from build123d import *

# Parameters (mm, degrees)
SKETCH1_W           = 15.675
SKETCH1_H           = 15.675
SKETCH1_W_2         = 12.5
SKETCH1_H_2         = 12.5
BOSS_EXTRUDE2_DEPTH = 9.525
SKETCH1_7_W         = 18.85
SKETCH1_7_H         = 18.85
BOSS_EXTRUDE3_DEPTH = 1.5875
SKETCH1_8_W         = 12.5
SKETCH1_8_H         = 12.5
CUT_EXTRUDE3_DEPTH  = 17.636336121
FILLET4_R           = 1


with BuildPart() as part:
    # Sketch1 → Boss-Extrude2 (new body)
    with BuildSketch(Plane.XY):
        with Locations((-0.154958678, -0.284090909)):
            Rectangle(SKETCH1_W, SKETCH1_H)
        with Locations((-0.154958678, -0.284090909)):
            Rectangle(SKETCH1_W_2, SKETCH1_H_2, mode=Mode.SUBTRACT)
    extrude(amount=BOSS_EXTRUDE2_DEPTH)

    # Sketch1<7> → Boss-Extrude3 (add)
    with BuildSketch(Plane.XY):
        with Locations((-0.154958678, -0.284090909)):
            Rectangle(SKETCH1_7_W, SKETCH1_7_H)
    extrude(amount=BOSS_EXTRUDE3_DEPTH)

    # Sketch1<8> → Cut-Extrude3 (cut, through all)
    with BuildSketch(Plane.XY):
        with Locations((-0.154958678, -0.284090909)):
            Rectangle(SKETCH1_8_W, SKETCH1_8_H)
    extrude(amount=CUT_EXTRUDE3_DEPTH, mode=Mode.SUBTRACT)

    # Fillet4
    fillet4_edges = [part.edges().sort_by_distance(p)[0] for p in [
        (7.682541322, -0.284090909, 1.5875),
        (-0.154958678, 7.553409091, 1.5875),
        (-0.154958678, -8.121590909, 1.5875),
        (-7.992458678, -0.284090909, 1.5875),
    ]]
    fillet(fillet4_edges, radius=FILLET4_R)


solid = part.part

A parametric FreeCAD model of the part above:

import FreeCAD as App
import Part
import Sketcher

V = App.Vector


def edges_at(feature, points):
    """Names of the edges that pass closest to the given points."""
    edges = feature.Shape.Edges
    near = lambda p: min(range(len(edges)), key=lambda i: edges[i].distToShape(Part.Vertex(*p))[0])
    return sorted({f"Edge{near(p) + 1}" for p in points})

doc = App.newDocument("Part")
body = doc.addObject("PartDesign::Body", "Body")

# Sketch on XY plane
sketch1 = body.newObject("Sketcher::SketchObject", "Sketch")
sketch1.AttachmentSupport = (doc.getObject("XY_Plane"), [""])
sketch1.MapMode = "FlatFace"
sketch1.addGeometry(Part.LineSegment(V(-7.992459, 7.553409, 0), V(-7.992459, -8.121591, 0)), False)
sketch1.addGeometry(Part.LineSegment(V(-7.992459, -8.121591, 0), V(7.682541, -8.121591, 0)), False)
sketch1.addGeometry(Part.LineSegment(V(7.682541, -8.121591, 0), V(7.682541, 7.553409, 0)), False)
sketch1.addGeometry(Part.LineSegment(V(7.682541, 7.553409, 0), V(-7.992459, 7.553409, 0)), False)
sketch1.addGeometry(Part.LineSegment(V(6.095041, -6.534091, 0), V(-6.404959, -6.534091, 0)), False)
sketch1.addGeometry(Part.LineSegment(V(-6.404959, -6.534091, 0), V(-6.404959, 5.965909, 0)), False)
sketch1.addGeometry(Part.LineSegment(V(-6.404959, 5.965909, 0), V(6.095041, 5.965909, 0)), False)
sketch1.addGeometry(Part.LineSegment(V(6.095041, 5.965909, 0), V(6.095041, -6.534091, 0)), False)
sketch1.addConstraint(Sketcher.Constraint("Coincident", 0, 2, 1, 1))
sketch1.addConstraint(Sketcher.Constraint("Coincident", 1, 2, 2, 1))
sketch1.addConstraint(Sketcher.Constraint("Coincident", 2, 2, 3, 1))
sketch1.addConstraint(Sketcher.Constraint("Coincident", 3, 2, 0, 1))
sketch1.addConstraint(Sketcher.Constraint("Coincident", 4, 2, 5, 1))
sketch1.addConstraint(Sketcher.Constraint("Coincident", 5, 2, 6, 1))
sketch1.addConstraint(Sketcher.Constraint("Coincident", 6, 2, 7, 1))
sketch1.addConstraint(Sketcher.Constraint("Coincident", 7, 2, 4, 1))
sketch1.addConstraint(Sketcher.Constraint("Vertical", 0))
sketch1.addConstraint(Sketcher.Constraint("Horizontal", 1))
sketch1.addConstraint(Sketcher.Constraint("Vertical", 2))
sketch1.addConstraint(Sketcher.Constraint("Horizontal", 3))
sketch1.addConstraint(Sketcher.Constraint("Horizontal", 4))
sketch1.addConstraint(Sketcher.Constraint("Vertical", 5))
sketch1.addConstraint(Sketcher.Constraint("Horizontal", 6))
sketch1.addConstraint(Sketcher.Constraint("Vertical", 7))
sketch1.addConstraint(Sketcher.Constraint("Equal", 3, 0))
sketch1.addConstraint(Sketcher.Constraint("Equal", 6, 5))
sketch1.addConstraint(Sketcher.Constraint("DistanceX", 4, 2, 4, 1, 12.5))
sketch1.addConstraint(Sketcher.Constraint("DistanceX", 1, 1, 1, 2, 15.675))
sketch1.addConstraint(Sketcher.Constraint("DistanceX", 0, 2, 4, 2, 1.5875))
sketch1.addConstraint(Sketcher.Constraint("DistanceY", 0, 2, 4, 2, 1.5875))
sketch1.addConstraint(Sketcher.Constraint("DistanceX", 0, 2, -1, 1, 7.992459))
sketch1.addConstraint(Sketcher.Constraint("DistanceY", 0, 2, -1, 1, 8.121591))
pad1 = body.newObject("PartDesign::Pad", "Pad")
pad1.Profile = sketch1
pad1.Length = 9.525

# Sketch on XY plane
sketch2 = body.newObject("Sketcher::SketchObject", "Sketch001")
sketch2.AttachmentSupport = (doc.getObject("XY_Plane"), [""])
sketch2.MapMode = "FlatFace"
sketch2.addGeometry(Part.LineSegment(V(-9.579959, 9.140909, 0), V(-9.579959, -9.709091, 0)), False)
sketch2.addGeometry(Part.LineSegment(V(-9.579959, -9.709091, 0), V(9.270041, -9.709091, 0)), False)
sketch2.addGeometry(Part.LineSegment(V(9.270041, -9.709091, 0), V(9.270041, 9.140909, 0)), False)
sketch2.addGeometry(Part.LineSegment(V(9.270041, 9.140909, 0), V(-9.579959, 9.140909, 0)), False)
sketch2.addConstraint(Sketcher.Constraint("Coincident", 0, 2, 1, 1))
sketch2.addConstraint(Sketcher.Constraint("Coincident", 1, 2, 2, 1))
sketch2.addConstraint(Sketcher.Constraint("Coincident", 2, 2, 3, 1))
sketch2.addConstraint(Sketcher.Constraint("Coincident", 3, 2, 0, 1))
sketch2.addConstraint(Sketcher.Constraint("Vertical", 0))
sketch2.addConstraint(Sketcher.Constraint("Horizontal", 1))
sketch2.addConstraint(Sketcher.Constraint("Vertical", 2))
sketch2.addConstraint(Sketcher.Constraint("Horizontal", 3))
sketch2.addConstraint(Sketcher.Constraint("Equal", 3, 0))
sketch2.addConstraint(Sketcher.Constraint("DistanceX", 1, 1, 1, 2, 18.85))
sketch2.addConstraint(Sketcher.Constraint("DistanceX", 0, 2, -1, 1, 9.579959))
sketch2.addConstraint(Sketcher.Constraint("DistanceY", 0, 2, -1, 1, 9.709091))
pad2 = body.newObject("PartDesign::Pad", "Pad001")
pad2.Profile = sketch2
pad2.Length = 1.5875

# Sketch on XY plane
sketch3 = body.newObject("Sketcher::SketchObject", "Sketch002")
sketch3.AttachmentSupport = (doc.getObject("XY_Plane"), [""])
sketch3.MapMode = "FlatFace"
sketch3.addGeometry(Part.LineSegment(V(-6.404959, 5.965909, 0), V(-6.404959, -6.534091, 0)), False)
sketch3.addGeometry(Part.LineSegment(V(-6.404959, -6.534091, 0), V(6.095041, -6.534091, 0)), False)
sketch3.addGeometry(Part.LineSegment(V(6.095041, -6.534091, 0), V(6.095041, 5.965909, 0)), False)
sketch3.addGeometry(Part.LineSegment(V(6.095041, 5.965909, 0), V(-6.404959, 5.965909, 0)), False)
sketch3.addConstraint(Sketcher.Constraint("Coincident", 0, 2, 1, 1))
sketch3.addConstraint(Sketcher.Constraint("Coincident", 1, 2, 2, 1))
sketch3.addConstraint(Sketcher.Constraint("Coincident", 2, 2, 3, 1))
sketch3.addConstraint(Sketcher.Constraint("Coincident", 3, 2, 0, 1))
sketch3.addConstraint(Sketcher.Constraint("Vertical", 0))
sketch3.addConstraint(Sketcher.Constraint("Horizontal", 1))
sketch3.addConstraint(Sketcher.Constraint("Vertical", 2))
sketch3.addConstraint(Sketcher.Constraint("Horizontal", 3))
sketch3.addConstraint(Sketcher.Constraint("Equal", 3, 0))
sketch3.addConstraint(Sketcher.Constraint("DistanceX", 1, 1, 1, 2, 12.5))
sketch3.addConstraint(Sketcher.Constraint("DistanceX", 0, 2, -1, 1, 6.404959))
sketch3.addConstraint(Sketcher.Constraint("DistanceY", 0, 2, -1, 1, 6.534091))
pocket1 = body.newObject("PartDesign::Pocket", "Pocket")
pocket1.Profile = sketch3
pocket1.Type = "ThroughAll"
pocket1.Reversed = True
doc.recompute()

fillet = body.newObject("PartDesign::Fillet", "Fillet")
fillet.Base = (pocket1, edges_at(pocket1, [
    (7.683, -0.284, 1.587),
    (-0.155, 7.553, 1.587),
    (-0.155, -8.122, 1.587),
    (-7.992, -0.284, 1.587),
]))
fillet.Radius = 1

doc.recompute()
